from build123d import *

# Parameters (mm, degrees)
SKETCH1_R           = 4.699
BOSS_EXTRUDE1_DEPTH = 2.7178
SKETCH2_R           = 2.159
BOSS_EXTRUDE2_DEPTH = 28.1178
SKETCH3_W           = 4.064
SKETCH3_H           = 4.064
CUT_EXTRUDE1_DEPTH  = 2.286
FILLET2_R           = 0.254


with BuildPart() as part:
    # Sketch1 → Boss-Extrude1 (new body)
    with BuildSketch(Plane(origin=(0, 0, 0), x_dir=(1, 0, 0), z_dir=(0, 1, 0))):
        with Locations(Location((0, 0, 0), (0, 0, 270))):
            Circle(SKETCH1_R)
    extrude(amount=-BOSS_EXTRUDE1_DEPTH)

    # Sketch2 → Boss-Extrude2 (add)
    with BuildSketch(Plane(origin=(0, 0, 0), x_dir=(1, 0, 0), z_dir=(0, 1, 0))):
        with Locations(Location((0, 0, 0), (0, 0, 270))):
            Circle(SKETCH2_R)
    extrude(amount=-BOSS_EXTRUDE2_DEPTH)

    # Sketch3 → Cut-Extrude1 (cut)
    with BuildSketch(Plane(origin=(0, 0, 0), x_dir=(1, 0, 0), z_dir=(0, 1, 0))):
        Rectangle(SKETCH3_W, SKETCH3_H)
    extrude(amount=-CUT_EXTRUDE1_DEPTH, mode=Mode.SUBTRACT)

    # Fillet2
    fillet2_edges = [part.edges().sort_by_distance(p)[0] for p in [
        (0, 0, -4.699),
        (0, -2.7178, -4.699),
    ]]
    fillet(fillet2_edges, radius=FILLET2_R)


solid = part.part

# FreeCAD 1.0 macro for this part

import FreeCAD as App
import Part
import Sketcher
from FreeCAD import Vector
Q = App.Units.Quantity


def edges_at(feature, points):
    """Names of the edges that pass closest to the given points."""
    edges = feature.Shape.Edges
    near = lambda p: min(range(len(edges)), key=lambda i: edges[i].distToShape(Part.Vertex(*p))[0])
    return sorted({f"Edge{near(p) + 1}" for p in points})


def add_polygon(sketch, points):
    """Adds a closed chain of lines whose ends are joined by coincident constraints."""
    first, n = sketch.GeometryCount, len(points)
    for a, b in zip(points, points[1:] + points[:1]):
        sketch.addGeometry(Part.LineSegment(App.Vector(*a, 0), App.Vector(*b, 0)), False)
    for i in range(n):
        sketch.addConstraint(Sketcher.Constraint("Coincident", first + i, 2, first + (i + 1) % n, 1))

doc = App.newDocument("Part")
body = doc.addObject("PartDesign::Body", "Body")

# Sketch on XZ plane
sketch1 = body.newObject("Sketcher::SketchObject", "Sketch")
sketch1.AttachmentSupport = (doc.getObject("XZ_Plane"), [""])
sketch1.MapMode = "FlatFace"
sketch1.addGeometry(Part.Circle(Vector(0, 0, 0), Vector(0, 0, 1), 4.7), False)
sketch1.addConstraint(Sketcher.Constraint("Coincident", 0, 3, -1, 1))
sketch1.addConstraint(Sketcher.Constraint("Diameter", 0, Q("0.37 in")))
pad1 = body.newObject("PartDesign::Pad", "Pad")
pad1.Profile = sketch1
pad1.Length = Q("0.107 in")

# Sketch on XZ plane
sketch2 = body.newObject("Sketcher::SketchObject", "Sketch001")
sketch2.AttachmentSupport = (doc.getObject("XZ_Plane"), [""])
sketch2.MapMode = "FlatFace"
sketch2.addGeometry(Part.Circle(Vector(0, 0, 0), Vector(0, 0, 1), 2.2), False)
sketch2.addConstraint(Sketcher.Constraint("Coincident", 0, 3, -1, 1))
sketch2.addConstraint(Sketcher.Constraint("Diameter", 0, Q("0.17 in")))
pad2 = body.newObject("PartDesign::Pad", "Pad001")
pad2.Profile = sketch2
pad2.Length = Q("1.107 in")

# Sketch on XZ plane
sketch3 = body.newObject("Sketcher::SketchObject", "Sketch002")
sketch3.AttachmentSupport = (doc.getObject("XZ_Plane"), [""])
sketch3.MapMode = "FlatFace"
add_polygon(sketch3, [(-2, -2), (-2, 2), (2, 2), (2, -2)])  # lines 0-3
sketch3.addConstraint(Sketcher.Constraint("Vertical", 0))
sketch3.addConstraint(Sketcher.Constraint("Horizontal", 1))
sketch3.addConstraint(Sketcher.Constraint("Vertical", 2))
sketch3.addConstraint(Sketcher.Constraint("Horizontal", 3))
sketch3.addConstraint(Sketcher.Constraint("Symmetric", 0, 2, 2, 2, -1, 1))
sketch3.addConstraint(Sketcher.Constraint("Equal", 3, 0))
sketch3.addConstraint(Sketcher.Constraint("DistanceX", 1, 1, 1, 2, Q("0.16 in")))
pocket1 = body.newObject("PartDesign::Pocket", "Pocket")
pocket1.Profile = sketch3
pocket1.Length = Q("0.09 in")
pocket1.Reversed = True
doc.recompute()

fillet = body.newObject("PartDesign::Fillet", "Fillet")
fillet.Base = (pocket1, edges_at(pocket1, [(0, 0, -4.699), (0, -2.718, -4.699)]))
fillet.Radius = Q("0.01 in")

doc.recompute()
